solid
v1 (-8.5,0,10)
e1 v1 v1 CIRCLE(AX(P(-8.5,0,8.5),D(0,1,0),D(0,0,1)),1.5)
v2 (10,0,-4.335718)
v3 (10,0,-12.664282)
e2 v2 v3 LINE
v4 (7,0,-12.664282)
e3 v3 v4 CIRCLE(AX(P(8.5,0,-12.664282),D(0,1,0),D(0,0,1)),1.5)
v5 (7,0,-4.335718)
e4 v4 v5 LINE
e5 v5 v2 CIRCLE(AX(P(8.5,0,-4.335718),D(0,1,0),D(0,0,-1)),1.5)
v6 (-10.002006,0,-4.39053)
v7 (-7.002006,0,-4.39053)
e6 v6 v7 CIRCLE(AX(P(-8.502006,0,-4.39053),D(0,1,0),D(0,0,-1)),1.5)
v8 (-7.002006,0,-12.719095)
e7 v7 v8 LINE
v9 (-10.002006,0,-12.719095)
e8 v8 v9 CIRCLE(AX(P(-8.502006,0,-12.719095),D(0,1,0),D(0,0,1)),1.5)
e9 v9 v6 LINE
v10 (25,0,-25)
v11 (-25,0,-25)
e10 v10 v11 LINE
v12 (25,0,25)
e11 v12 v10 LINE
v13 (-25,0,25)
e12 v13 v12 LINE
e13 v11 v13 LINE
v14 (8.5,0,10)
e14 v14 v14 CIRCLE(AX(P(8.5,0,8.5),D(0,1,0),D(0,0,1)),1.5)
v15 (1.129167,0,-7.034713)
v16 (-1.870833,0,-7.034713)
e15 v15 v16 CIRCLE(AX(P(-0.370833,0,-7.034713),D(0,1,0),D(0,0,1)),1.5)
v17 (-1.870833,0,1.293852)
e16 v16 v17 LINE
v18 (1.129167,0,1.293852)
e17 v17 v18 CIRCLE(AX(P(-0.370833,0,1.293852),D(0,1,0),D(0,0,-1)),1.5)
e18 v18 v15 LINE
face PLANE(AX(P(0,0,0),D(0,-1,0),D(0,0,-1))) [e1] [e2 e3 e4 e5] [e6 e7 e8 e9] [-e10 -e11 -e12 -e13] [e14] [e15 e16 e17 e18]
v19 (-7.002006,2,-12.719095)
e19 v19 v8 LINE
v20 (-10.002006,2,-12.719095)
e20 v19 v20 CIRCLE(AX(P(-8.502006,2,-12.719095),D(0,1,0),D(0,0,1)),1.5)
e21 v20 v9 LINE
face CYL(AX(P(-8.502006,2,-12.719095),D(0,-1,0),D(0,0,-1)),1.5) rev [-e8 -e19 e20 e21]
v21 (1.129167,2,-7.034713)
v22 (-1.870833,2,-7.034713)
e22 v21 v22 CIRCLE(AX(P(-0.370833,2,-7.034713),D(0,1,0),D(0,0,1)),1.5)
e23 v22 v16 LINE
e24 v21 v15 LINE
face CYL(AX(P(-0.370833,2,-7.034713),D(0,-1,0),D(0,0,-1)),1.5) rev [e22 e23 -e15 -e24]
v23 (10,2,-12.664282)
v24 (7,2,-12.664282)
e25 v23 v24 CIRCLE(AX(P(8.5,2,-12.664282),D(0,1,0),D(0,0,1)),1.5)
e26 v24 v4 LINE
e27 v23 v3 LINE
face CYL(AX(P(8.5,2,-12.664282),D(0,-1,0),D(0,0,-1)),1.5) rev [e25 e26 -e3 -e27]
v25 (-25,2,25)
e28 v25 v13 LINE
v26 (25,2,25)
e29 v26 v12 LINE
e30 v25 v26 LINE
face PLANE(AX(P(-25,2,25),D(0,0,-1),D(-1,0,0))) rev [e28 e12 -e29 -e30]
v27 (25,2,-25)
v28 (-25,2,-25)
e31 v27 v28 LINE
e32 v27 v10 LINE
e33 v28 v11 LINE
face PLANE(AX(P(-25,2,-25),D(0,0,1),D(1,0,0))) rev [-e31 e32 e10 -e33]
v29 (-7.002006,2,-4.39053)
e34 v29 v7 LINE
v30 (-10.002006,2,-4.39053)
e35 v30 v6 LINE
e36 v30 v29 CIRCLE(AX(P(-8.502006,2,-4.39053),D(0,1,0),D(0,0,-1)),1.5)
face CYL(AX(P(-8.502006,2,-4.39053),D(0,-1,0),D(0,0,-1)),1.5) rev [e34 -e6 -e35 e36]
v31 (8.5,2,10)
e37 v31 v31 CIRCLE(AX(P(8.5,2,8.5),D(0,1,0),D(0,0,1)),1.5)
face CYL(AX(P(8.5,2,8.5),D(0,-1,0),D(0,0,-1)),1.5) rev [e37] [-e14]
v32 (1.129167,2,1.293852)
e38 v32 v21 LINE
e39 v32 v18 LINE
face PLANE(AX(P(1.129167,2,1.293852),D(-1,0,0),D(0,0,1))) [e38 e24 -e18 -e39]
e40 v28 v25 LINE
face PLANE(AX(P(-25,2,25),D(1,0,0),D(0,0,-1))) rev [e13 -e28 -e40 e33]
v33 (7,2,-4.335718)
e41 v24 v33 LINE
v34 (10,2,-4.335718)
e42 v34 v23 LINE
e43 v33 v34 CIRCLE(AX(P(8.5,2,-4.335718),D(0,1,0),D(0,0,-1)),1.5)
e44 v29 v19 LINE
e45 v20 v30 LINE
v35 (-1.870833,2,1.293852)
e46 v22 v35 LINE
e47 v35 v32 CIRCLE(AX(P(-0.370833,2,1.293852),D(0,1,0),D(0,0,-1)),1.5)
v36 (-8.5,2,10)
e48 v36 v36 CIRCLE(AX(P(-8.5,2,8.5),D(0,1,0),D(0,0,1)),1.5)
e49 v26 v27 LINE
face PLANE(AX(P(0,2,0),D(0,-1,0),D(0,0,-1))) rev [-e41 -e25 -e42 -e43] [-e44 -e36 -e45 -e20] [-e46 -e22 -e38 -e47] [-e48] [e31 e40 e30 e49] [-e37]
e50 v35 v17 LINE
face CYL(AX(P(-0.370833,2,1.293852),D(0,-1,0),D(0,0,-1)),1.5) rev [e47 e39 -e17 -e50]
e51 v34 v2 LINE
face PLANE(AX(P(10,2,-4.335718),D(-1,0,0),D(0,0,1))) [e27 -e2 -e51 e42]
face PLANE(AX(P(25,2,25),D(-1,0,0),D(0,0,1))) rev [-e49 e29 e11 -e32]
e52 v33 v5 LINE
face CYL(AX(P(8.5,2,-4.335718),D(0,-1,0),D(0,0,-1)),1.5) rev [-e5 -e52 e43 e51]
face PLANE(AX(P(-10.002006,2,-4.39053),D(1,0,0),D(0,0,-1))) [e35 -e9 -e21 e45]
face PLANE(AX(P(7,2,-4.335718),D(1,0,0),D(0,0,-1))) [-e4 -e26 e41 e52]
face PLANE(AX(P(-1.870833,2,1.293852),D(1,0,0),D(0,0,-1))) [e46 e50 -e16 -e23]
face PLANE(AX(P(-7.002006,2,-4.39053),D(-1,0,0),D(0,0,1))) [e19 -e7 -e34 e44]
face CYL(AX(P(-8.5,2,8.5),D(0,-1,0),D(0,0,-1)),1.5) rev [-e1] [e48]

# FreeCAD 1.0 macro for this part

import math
import FreeCAD as App
import Part
import Sketcher
Q = App.Units.Quantity


def add_polygon(sketch, points):
    """Adds a closed chain of lines whose ends are joined by coincident constraints."""
    first, n = sketch.GeometryCount, len(points)
    for a, b in zip(points, points[1:] + points[:1]):
        sketch.addGeometry(Part.LineSegment(App.Vector(*a, 0), App.Vector(*b, 0)), False)
    for i in range(n):
        sketch.addConstraint(Sketcher.Constraint("Coincident", first + i, 2, first + (i + 1) % n, 1))

doc = App.newDocument("Part")
params = doc.addObject("Spreadsheet::Sheet", "Params")
for row, (alias, value) in enumerate([
    ("sketch1_diameter", "3 mm"),
    ("sketch1_width", "50 mm"),
    ("pad1_length", "2 mm"),
], start=1):
    params.set(f"A{row}", alias)
    params.set(f"B{row}", "=" + value)
    params.setAlias(f"B{row}", alias)

body = doc.addObject("PartDesign::Body", "Body")

# Sketch on XZ plane
sketch1 = doc.addObject("Sketcher::SketchObject", "Sketch")
body.addObject(sketch1)
sketch1.AttachmentSupport = (doc.XZ_Plane, [""])
sketch1.MapMode = "FlatFace"
add_polygon(sketch1, [(-25, -25), (-25, 25), (25, 25), (25, -25)])  # lines 0-3
sketch1.addGeometry(Part.Circle(App.Vector(-8.5, 8.5, 0), App.Vector(0, 0, 1), 1.5), False)  # 4
sketch1.addGeometry(Part.Circle(App.Vector(8.5, 8.5, 0), App.Vector(0, 0, 1), 1.5), False)  # 5
sketch1.addGeometry(Part.ArcOfCircle(Part.Circle(App.Vector(-0.370833, 1.293852, 0), App.Vector(0, 0, 1), 1.5), math.radians(0), math.radians(180)), False)  # 6
sketch1.addGeometry(Part.LineSegment(App.Vector(-1.870833, 1.293852, 0), App.Vector(-1.870833, -7.034713, 0)), False)  # 7
sketch1.addGeometry(Part.ArcOfCircle(Part.Circle(App.Vector(-0.370833, -7.034713, 0), App.Vector(0, 0, 1), 1.5), math.radians(180), math.radians(360)), False)  # 8
sketch1.addGeometry(Part.LineSegment(App.Vector(1.129167, -7.034713, 0), App.Vector(1.129167, 1.293852, 0)), False)  # 9
sketch1.addGeometry(Part.ArcOfCircle(Part.Circle(App.Vector(-8.502006, -4.39053, 0), App.Vector(0, 0, 1), 1.5), math.radians(0), math.radians(180)), False)  # 10
sketch1.addGeometry(Part.LineSegment(App.Vector(-10.002006, -4.39053, 0), App.Vector(-10.002006, -12.719095, 0)), False)  # 11
sketch1.addGeometry(Part.ArcOfCircle(Part.Circle(App.Vector(-8.502006, -12.719095, 0), App.Vector(0, 0, 1), 1.5), math.radians(180), math.radians(360)), False)  # 12
sketch1.addGeometry(Part.LineSegment(App.Vector(-7.002006, -12.719095, 0), App.Vector(-7.002006, -4.39053, 0)), False)  # 13
sketch1.addGeometry(Part.ArcOfCircle(Part.Circle(App.Vector(8.5, -4.335718, 0), App.Vector(0, 0, 1), 1.5), math.radians(0), math.radians(180)), False)  # 14
sketch1.addGeometry(Part.LineSegment(App.Vector(7, -4.335718, 0), App.Vector(7, -12.664282, 0)), False)  # 15
sketch1.addGeometry(Part.ArcOfCircle(Part.Circle(App.Vector(8.5, -12.664282, 0), App.Vector(0, 0, 1), 1.5), math.radians(180), math.radians(360)), False)  # 16
sketch1.addGeometry(Part.LineSegment(App.Vector(10, -12.664282, 0), App.Vector(10, -4.335718, 0)), False)  # 17
sketch1.addConstraint(Sketcher.Constraint("Tangent", 6, 2, 7, 1))
sketch1.addConstraint(Sketcher.Constraint("Tangent", 7, 2, 8, 1))
sketch1.addConstraint(Sketcher.Constraint("Tangent", 8, 2, 9, 1))
sketch1.addConstraint(Sketcher.Constraint("Tangent", 9, 2, 6, 1))
sketch1.addConstraint(Sketcher.Constraint("Tangent", 10, 2, 11, 1))
sketch1.addConstraint(Sketcher.Constraint("Tangent", 11, 2, 12, 1))
sketch1.addConstraint(Sketcher.Constraint("Tangent", 12, 2, 13, 1))
sketch1.addConstraint(Sketcher.Constraint("Tangent", 13, 2, 10, 1))
sketch1.addConstraint(Sketcher.Constraint("Tangent", 14, 2, 15, 1))
sketch1.addConstraint(Sketcher.Constraint("Tangent", 15, 2, 16, 1))
sketch1.addConstraint(Sketcher.Constraint("Tangent", 16, 2, 17, 1))
sketch1.addConstraint(Sketcher.Constraint("Tangent", 17, 2, 14, 1))
sketch1.addConstraint(Sketcher.Constraint("Vertical", 0))
sketch1.addConstraint(Sketcher.Constraint("Horizontal", 1))
sketch1.addConstraint(Sketcher.Constraint("Vertical", 2))
sketch1.addConstraint(Sketcher.Constraint("Horizontal", 3))
sketch1.addConstraint(Sketcher.Constraint("Vertical", 7))
sketch1.addConstraint(Sketcher.Constraint("Vertical", 9))
sketch1.addConstraint(Sketcher.Constraint("Vertical", 11))
sketch1.addConstraint(Sketcher.Constraint("Vertical", 13))
sketch1.addConstraint(Sketcher.Constraint("Vertical", 15))
sketch1.addConstraint(Sketcher.Constraint("Vertical", 17))
sketch1.addConstraint(Sketcher.Constraint("Equal", 4, 5))
sketch1.addConstraint(Sketcher.Constraint("Equal", 5, 6))
sketch1.addConstraint(Sketcher.Constraint("Equal", 8, 10))
sketch1.addConstraint(Sketcher.Constraint("Equal", 12, 14))
sketch1.addConstraint(Sketcher.Constraint("Symmetric", 0, 2, 2, 2, -1, 1))
sketch1.addConstraint(Sketcher.Constraint("Symmetric", 4, 3, 5, 3, -2))
sketch1.addConstraint(Sketcher.Constraint("Vertical", 5, 3, 14, 3))
sketch1.addConstraint(Sketcher.Constraint("Equal", 3, 0))
sketch1.addConstraint(Sketcher.Constraint("Equal", 9, 11))
sketch1.addConstraint(Sketcher.Constraint("Equal", 13, 15))
sketch1.addConstraint(Sketcher.Constraint("Diameter", 4, Q("3 mm")))
sketch1.addConstraint(Sketcher.Constraint("DistanceX", 1, 1, 1, 2, Q("50 mm")))
sketch1.addConstraint(Sketcher.Constraint("DistanceX", -1, 1, 14, 2, Q("7 mm")))
sketch1.addConstraint(Sketcher.Constraint("DistanceY", -1, 1, 4, 3, Q("8.5 mm")))
sketch1.addConstraint(Sketcher.Constraint("DistanceY", 7, 2, 7, 1, Q("8.328565 mm")))
sketch1.addConstraint(Sketcher.Constraint("DistanceY", 10, 3, -1, 1, Q("4.39053 mm")))
sketch1.addConstraint(Sketcher.Constraint("DistanceY", 10, 3, 6, 3, Q("5.684382 mm")))
sketch1.addConstraint(Sketcher.Constraint("DistanceY", 14, 3, 6, 3, Q("5.62957 mm")))
sketch1.addConstraint(Sketcher.Constraint("DistanceX", 6, 3, -1, 1, Q("0.370833 mm")))
sketch1.addConstraint(Sketcher.Constraint("DistanceX", 10, 3, -1, 1, Q("8.502006 mm")))
sketch1.setExpression("Constraints[36]", "Params.sketch1_diameter")
sketch1.setExpression("Constraints[37]", "Params.sketch1_width")
pad1 = doc.addObject("PartDesign::Pad", "Pad")
body.addObject(pad1)
pad1.Profile = sketch1
pad1.setExpression("Length", "Params.pad1_length")
pad1.Reversed = True

doc.recompute()
